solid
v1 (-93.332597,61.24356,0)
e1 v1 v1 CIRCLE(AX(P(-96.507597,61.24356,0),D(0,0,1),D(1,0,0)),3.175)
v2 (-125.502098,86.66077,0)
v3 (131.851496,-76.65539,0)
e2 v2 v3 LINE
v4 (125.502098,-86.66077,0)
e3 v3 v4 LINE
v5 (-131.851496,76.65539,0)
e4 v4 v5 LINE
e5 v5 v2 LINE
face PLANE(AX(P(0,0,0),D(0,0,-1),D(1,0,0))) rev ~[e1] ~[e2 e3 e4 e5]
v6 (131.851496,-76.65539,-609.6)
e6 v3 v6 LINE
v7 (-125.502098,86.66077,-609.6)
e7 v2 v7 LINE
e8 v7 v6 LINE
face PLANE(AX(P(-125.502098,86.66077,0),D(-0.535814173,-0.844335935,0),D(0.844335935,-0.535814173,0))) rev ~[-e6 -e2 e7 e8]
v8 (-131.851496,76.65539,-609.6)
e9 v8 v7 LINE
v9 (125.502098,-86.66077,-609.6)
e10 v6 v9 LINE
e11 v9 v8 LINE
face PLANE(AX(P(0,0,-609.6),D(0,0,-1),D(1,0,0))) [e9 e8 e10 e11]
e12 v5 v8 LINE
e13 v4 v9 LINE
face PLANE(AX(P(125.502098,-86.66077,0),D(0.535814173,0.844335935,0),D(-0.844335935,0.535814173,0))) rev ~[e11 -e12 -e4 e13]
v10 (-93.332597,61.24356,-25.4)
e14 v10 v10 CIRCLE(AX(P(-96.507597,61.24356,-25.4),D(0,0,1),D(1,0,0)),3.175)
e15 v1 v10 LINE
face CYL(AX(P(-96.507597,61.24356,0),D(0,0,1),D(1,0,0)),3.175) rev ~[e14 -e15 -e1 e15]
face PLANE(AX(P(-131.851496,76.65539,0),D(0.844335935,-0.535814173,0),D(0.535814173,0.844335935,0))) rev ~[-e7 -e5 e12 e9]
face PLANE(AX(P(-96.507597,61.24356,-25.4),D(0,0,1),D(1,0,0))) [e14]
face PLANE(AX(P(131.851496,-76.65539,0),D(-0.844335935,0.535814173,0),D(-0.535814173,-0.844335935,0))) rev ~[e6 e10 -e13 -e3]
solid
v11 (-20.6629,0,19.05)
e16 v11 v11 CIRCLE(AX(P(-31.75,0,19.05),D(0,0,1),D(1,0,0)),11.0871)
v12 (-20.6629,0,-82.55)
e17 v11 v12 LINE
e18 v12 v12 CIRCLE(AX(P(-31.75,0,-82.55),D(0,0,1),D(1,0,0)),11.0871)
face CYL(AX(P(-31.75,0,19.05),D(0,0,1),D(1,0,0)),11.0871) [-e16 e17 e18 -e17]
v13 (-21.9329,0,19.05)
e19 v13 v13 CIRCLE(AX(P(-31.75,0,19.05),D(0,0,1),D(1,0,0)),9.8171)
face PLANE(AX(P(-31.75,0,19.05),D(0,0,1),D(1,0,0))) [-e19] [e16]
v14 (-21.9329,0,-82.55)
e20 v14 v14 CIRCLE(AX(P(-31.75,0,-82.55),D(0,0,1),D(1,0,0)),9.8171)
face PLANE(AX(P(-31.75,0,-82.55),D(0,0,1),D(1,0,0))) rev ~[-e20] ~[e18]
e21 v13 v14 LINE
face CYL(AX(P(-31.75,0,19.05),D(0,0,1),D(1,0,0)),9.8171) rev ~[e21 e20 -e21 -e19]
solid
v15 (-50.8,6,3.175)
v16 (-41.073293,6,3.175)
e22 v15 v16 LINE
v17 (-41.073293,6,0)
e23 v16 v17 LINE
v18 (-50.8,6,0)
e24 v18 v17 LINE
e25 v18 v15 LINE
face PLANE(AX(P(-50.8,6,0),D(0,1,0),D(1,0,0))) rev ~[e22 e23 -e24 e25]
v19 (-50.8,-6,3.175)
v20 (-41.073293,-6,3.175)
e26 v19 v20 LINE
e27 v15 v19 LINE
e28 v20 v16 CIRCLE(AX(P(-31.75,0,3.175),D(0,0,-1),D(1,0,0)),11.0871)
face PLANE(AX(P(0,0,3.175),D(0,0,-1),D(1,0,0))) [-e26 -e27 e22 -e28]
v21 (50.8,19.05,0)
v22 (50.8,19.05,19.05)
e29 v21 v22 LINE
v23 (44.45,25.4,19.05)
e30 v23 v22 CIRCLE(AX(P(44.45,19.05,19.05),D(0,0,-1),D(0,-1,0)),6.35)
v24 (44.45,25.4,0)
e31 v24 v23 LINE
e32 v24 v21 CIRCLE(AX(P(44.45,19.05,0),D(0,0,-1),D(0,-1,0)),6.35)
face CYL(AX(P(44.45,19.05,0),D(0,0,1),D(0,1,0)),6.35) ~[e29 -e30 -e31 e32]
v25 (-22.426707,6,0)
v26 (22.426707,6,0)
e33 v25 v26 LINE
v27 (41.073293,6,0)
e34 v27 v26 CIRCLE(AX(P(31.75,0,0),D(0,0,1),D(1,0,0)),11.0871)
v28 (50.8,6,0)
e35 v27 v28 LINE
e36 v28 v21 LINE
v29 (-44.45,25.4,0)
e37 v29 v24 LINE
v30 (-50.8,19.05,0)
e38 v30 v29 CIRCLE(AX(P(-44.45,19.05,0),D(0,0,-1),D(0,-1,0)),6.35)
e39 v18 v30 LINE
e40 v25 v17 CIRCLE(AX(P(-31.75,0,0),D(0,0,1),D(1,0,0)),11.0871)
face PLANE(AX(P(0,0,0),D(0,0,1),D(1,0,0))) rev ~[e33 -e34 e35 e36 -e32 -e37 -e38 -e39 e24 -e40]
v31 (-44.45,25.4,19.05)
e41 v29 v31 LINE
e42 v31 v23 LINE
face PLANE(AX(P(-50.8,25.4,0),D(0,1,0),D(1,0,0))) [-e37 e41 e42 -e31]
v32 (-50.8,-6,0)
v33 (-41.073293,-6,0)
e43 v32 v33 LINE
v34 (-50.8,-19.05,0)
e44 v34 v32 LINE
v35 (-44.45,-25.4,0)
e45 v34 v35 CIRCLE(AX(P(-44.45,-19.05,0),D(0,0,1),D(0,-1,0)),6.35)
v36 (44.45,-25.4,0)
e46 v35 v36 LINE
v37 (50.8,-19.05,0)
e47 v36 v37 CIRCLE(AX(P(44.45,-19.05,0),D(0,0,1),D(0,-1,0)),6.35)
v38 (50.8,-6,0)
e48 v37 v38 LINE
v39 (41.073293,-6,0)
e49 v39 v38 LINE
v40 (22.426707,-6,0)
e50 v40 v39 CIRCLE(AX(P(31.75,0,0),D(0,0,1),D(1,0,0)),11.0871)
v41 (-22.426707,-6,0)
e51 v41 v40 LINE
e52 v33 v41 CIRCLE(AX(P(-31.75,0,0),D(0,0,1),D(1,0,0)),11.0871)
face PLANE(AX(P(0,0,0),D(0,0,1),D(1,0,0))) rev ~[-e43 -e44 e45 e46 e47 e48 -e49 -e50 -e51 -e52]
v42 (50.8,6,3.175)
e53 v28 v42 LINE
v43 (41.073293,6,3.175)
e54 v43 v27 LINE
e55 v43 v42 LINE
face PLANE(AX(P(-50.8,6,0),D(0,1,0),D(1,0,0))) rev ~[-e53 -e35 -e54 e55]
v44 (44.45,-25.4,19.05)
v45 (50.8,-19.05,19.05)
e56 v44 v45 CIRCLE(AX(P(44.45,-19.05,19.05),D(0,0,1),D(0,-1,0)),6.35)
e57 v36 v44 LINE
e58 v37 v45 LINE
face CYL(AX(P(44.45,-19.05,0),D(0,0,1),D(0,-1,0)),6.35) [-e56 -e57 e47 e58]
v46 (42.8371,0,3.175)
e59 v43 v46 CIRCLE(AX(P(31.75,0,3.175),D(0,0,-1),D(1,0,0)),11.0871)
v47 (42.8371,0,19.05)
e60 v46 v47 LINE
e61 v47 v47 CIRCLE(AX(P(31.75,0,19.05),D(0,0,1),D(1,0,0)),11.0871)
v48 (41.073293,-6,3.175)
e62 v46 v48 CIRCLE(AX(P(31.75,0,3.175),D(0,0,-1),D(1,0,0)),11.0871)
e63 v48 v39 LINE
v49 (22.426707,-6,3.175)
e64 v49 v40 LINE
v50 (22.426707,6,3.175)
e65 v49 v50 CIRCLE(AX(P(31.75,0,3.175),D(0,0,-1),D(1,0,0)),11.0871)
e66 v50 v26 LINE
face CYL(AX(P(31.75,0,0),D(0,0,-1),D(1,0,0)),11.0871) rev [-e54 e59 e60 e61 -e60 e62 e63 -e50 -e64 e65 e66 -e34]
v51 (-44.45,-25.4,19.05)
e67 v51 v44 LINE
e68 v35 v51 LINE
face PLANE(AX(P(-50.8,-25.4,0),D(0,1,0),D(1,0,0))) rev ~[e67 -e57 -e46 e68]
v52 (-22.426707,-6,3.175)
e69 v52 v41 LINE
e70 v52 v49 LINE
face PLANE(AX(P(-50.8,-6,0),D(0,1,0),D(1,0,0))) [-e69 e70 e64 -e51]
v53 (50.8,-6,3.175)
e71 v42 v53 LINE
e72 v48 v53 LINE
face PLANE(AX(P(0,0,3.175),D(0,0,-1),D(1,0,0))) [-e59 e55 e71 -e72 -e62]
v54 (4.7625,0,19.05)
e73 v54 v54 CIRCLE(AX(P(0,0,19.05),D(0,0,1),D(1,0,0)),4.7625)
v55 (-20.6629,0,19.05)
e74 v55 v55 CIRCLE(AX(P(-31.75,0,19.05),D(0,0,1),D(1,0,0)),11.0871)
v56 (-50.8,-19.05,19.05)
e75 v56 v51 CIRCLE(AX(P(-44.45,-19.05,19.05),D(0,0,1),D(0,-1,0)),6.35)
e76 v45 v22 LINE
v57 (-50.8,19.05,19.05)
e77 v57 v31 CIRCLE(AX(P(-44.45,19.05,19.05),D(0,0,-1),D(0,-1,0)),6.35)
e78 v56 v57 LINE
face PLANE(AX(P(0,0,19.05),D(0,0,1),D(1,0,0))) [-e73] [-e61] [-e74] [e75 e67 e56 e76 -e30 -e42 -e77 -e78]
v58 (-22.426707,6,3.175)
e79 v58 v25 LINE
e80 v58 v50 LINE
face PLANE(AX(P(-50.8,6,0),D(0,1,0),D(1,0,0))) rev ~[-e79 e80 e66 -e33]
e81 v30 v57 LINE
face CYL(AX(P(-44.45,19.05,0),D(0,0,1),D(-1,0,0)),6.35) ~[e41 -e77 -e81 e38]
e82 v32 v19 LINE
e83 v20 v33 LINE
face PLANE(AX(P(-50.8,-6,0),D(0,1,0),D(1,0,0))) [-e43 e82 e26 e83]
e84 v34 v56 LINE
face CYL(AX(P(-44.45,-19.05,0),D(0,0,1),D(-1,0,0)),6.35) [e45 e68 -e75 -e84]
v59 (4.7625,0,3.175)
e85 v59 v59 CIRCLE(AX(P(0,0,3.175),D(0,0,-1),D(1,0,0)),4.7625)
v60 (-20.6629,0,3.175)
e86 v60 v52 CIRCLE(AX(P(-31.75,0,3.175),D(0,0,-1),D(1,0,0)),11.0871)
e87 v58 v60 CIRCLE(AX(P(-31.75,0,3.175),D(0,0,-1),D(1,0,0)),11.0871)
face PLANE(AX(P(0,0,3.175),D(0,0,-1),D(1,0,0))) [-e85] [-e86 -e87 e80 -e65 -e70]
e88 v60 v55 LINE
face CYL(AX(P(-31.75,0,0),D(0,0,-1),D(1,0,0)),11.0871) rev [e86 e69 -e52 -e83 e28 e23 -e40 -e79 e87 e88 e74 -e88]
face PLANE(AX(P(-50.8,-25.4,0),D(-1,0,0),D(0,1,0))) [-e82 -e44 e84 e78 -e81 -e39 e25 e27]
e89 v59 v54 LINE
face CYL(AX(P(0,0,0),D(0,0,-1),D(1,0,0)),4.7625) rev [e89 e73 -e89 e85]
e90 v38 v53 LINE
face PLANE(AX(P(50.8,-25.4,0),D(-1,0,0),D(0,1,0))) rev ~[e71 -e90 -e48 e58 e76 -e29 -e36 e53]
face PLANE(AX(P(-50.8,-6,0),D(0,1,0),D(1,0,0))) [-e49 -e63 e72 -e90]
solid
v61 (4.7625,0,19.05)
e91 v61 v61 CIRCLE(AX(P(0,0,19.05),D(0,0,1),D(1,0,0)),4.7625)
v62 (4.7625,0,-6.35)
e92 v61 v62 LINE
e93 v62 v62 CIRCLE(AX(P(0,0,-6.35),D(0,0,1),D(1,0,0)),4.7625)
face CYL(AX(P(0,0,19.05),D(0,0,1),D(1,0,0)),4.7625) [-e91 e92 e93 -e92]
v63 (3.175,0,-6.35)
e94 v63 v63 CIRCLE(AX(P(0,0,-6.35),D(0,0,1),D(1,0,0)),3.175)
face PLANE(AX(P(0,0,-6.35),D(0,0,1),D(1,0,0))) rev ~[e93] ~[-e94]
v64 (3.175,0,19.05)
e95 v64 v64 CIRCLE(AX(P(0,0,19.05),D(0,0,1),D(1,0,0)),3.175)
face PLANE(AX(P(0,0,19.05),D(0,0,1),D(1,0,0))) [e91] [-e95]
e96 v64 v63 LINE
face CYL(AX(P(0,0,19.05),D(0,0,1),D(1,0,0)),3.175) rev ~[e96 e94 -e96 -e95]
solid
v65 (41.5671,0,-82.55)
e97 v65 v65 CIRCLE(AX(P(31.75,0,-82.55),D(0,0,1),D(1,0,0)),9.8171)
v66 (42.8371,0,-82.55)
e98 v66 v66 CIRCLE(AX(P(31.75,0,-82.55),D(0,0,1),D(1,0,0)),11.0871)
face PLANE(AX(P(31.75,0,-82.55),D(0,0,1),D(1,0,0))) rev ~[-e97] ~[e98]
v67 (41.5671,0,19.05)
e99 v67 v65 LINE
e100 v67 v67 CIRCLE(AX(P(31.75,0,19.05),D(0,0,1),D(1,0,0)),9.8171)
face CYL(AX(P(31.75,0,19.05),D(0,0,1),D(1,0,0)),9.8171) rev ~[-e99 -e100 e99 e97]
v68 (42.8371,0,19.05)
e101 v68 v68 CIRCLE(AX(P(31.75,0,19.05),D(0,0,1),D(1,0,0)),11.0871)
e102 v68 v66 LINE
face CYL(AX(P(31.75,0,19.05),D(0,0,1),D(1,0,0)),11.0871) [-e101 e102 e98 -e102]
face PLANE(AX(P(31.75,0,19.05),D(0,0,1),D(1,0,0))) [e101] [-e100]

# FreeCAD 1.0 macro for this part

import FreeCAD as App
import Part
import Sketcher

V = App.Vector
Q = App.Units.Quantity


def edges_at(feature, points):
    """Names of the edges that pass closest to the given points."""
    edges = feature.Shape.Edges
    near = lambda p: min(range(len(edges)), key=lambda i: edges[i].distToShape(Part.Vertex(*p))[0])
    return sorted({f"Edge{near(p) + 1}" for p in points})


def add_polygon(sketch, points):
    """Adds a closed chain of lines whose ends are joined by coincident constraints."""
    first, n = sketch.GeometryCount, len(points)
    for a, b in zip(points, points[1:] + points[:1]):
        sketch.addGeometry(Part.LineSegment(App.Vector(*a, 0), App.Vector(*b, 0)), False)
    for i in range(n):
        sketch.addConstraint(Sketcher.Constraint("Coincident", first + i, 2, first + (i + 1) % n, 1))

doc = App.newDocument("Part")
body = doc.addObject("PartDesign::Body", "Body")

# Sketch on XY plane
sketch1 = body.newObject("Sketcher::SketchObject", "Sketch")
sketch1.AttachmentSupport = (doc.getObject("XY_Plane"), [""])
sketch1.MapMode = "FlatFace"
add_polygon(sketch1, [(-50.8, 25.4), (-50.8, -25.4), (50.8, -25.4), (50.8, 25.4)])  # lines 0-3
sketch1.addGeometry(Part.Circle(V(-31.8, 0, 0), V(0, 0, 1), 11.1), False)  # 4
sketch1.addGeometry(Part.Circle(V(0, 0, 0), V(0, 0, 1), 4.8), False)  # 5
sketch1.addGeometry(Part.Circle(V(31.8, 0, 0), V(0, 0, 1), 11.1), False)  # 6
sketch1.addConstraint([
    Sketcher.Constraint("Vertical", 0),
    Sketcher.Constraint("Horizontal", 1),
    Sketcher.Constraint("Vertical", 2),
    Sketcher.Constraint("Horizontal", 3),
    Sketcher.Constraint("Coincident", 5, 3, -1, 1),
    Sketcher.Constraint("Equal", 4, 6),
    Sketcher.Constraint("Symmetric", 4, 3, 6, 3, -1, 1),
    Sketcher.Constraint("Symmetric", 0, 2, 2, 2, -1, 1),
    Sketcher.Constraint("PointOnObject", 4, 3, -1),
    Sketcher.Constraint("DistanceX", 1, 1, 1, 2, Q("4 in")),
    Sketcher.Constraint("DistanceY", 0, 2, 0, 1, Q("2 in")),
    Sketcher.Constraint("Diameter", 4, Q("0.873 in")),
    Sketcher.Constraint("Diameter", 5, Q("0.375 in")),
    Sketcher.Constraint("DistanceX", 4, 3, 6, 3, Q("2.5 in")),
])
pad1 = body.newObject("PartDesign::Pad", "Pad")
pad1.Profile = sketch1
pad1.Length = Q("0.75 in")
doc.recompute()

fillet = body.newObject("PartDesign::Fillet", "Fillet")
fillet.Base = (pad1, edges_at(pad1, [
    (-50.8, -25.4, 9.525),
    (-50.8, 25.4, 9.525),
    (50.8, -25.4, 9.525),
    (50.8, 25.4, 9.525),
]))
fillet.Radius = Q("0.25 in")

# Sketch on XY plane
sketch2 = body.newObject("Sketcher::SketchObject", "Sketch001")
sketch2.AttachmentSupport = (doc.getObject("XY_Plane"), [""])
sketch2.MapMode = "FlatFace"
add_polygon(sketch2, [(-51, -6), (-51, 6), (51, 6), (51, -6)])  # lines 0-3
sketch2.addConstraint([
    Sketcher.Constraint("Vertical", 0),
    Sketcher.Constraint("Horizontal", 1),
    Sketcher.Constraint("Vertical", 2),
    Sketcher.Constraint("Horizontal", 3),
    Sketcher.Constraint("Symmetric", 0, 2, 2, 2, -1, 1),
    Sketcher.Constraint("DistanceX", 1, 1, 1, 2, Q("4 in")),
    Sketcher.Constraint("DistanceY", 0, 1, 0, 2, 12.0),
])
pocket1 = body.newObject("PartDesign::Pocket", "Pocket")
pocket1.Profile = sketch2
pocket1.Length = Q("0.125 in")
pocket1.Reversed = True
body2 = doc.addObject("PartDesign::Body", "Body001")

# Sketch on XY plane
sketch3 = body2.newObject("Sketcher::SketchObject", "Sketch002")
sketch3.AttachmentSupport = (doc.getObject("XY_Plane001"), [""])
sketch3.MapMode = "FlatFace"
sketch3.AttachmentOffset = App.Placement(V(0, 0, 0.75 * 25.4), App.Rotation())
sketch3.addGeometry([
    Part.Circle(V(-32, 0, 0), V(0, 0, 1), 11),
    Part.Circle(V(-32, 0, 0), V(0, 0, 1), 10),
], False)
sketch3.addConstraint([
    Sketcher.Constraint("Coincident", 1, 3, 0, 3),
    Sketcher.Constraint("PointOnObject", 0, 3, -1),
    Sketcher.Constraint("Diameter", 0, Q("0.873 in")),
    Sketcher.Constraint("Diameter", 1, Q("0.773 in")),
    Sketcher.Constraint("DistanceX", 0, 3, -1, 1, Q("1.25 in")),
])
pad2 = body2.newObject("PartDesign::Pad", "Pad001")
pad2.Profile = sketch3
pad2.Length = Q("4 in")
pad2.Reversed = True
body3 = doc.addObject("PartDesign::Body", "Body002")

# Sketch on XY plane
sketch4 = body3.newObject("Sketcher::SketchObject", "Sketch003")
sketch4.AttachmentSupport = (doc.getObject("XY_Plane002"), [""])
sketch4.MapMode = "FlatFace"
sketch4.AttachmentOffset = App.Placement(V(0, 0, 0.75 * 25.4), App.Rotation())
sketch4.addGeometry([
    Part.Circle(V(32, 0, 0), V(0, 0, 1), 11),
    Part.Circle(V(32, 0, 0), V(0, 0, 1), 10),
], False)
sketch4.addConstraint([
    Sketcher.Constraint("Coincident", 1, 3, 0, 3),
    Sketcher.Constraint("PointOnObject", 0, 3, -1),
    Sketcher.Constraint("Diameter", 0, Q("0.873 in")),
    Sketcher.Constraint("Diameter", 1, Q("0.773 in")),
    Sketcher.Constraint("DistanceX", -1, 1, 0, 3, Q("1.25 in")),
])
pad3 = body3.newObject("PartDesign::Pad", "Pad002")
pad3.Profile = sketch4
pad3.Length = Q("4 in")
pad3.Reversed = True
body4 = doc.addObject("PartDesign::Body", "Body003")

# Sketch on XY plane
sketch5 = body4.newObject("Sketcher::SketchObject", "Sketch004")
sketch5.AttachmentSupport = (doc.getObject("XY_Plane003"), [""])
sketch5.MapMode = "FlatFace"
sketch5.AttachmentOffset = App.Placement(V(0, 0, 0.75 * 25.4), App.Rotation())
sketch5.addGeometry([
    Part.Circle(V(0, 0, 0), V(0, 0, 1), 4.8),
    Part.Circle(V(0, 0, 0), V(0, 0, 1), 3.2),
], False)
sketch5.addConstraint([
    Sketcher.Constraint("Coincident", 0, 3, -1, 1),
    Sketcher.Constraint("Coincident", 1, 3, -1, 1),
    Sketcher.Constraint("Diameter", 1, Q("0.25 in")),
    Sketcher.Constraint("Diameter", 0, Q("0.375 in")),
])
pad4 = body4.newObject("PartDesign::Pad", "Pad003")
pad4.Profile = sketch5
pad4.Length = Q("1 in")
pad4.Reversed = True
body5 = doc.addObject("PartDesign::Body", "Body004")

# Sketch on XY plane
sketch6 = body5.newObject("Sketcher::SketchObject", "Sketch005")
sketch6.AttachmentSupport = (doc.getObject("XY_Plane004"), [""])
sketch6.MapMode = "FlatFace"
add_polygon(sketch6, [(126, -87), (-132, 77), (-126, 87), (132, -77)])  # lines 0-3
sketch6.addConstraint([
    Sketcher.Constraint("Symmetric", 0, 2, 2, 2, -1, 1),
    Sketcher.Constraint("Symmetric", 1, 2, 3, 2, -1, 1),
    Sketcher.Constraint("Perpendicular", 0, 1),
    Sketcher.Constraint("Distance", 0, Q("12 in")),
    Sketcher.Constraint("Distance", 1, 11.85),
    Sketcher.Constraint("DistanceY", -1, 1, 0, 2, 76.65539),
])
pad5 = body5.newObject("PartDesign::Pad", "Pad004")
pad5.Profile = sketch6
pad5.Length = Q("24 in")
pad5.Reversed = True

# Sketch on XY plane
sketch7 = body5.newObject("Sketcher::SketchObject", "Sketch006")
sketch7.AttachmentSupport = (doc.getObject("XY_Plane004"), [""])
sketch7.MapMode = "FlatFace"
sketch7.addGeometry(Part.Circle(V(-96.5, 61.2, 0), V(0, 0, 1), 3.2), False)
sketch7.addConstraint([
    Sketcher.Constraint("Diameter", 0, Q("0.25 in")),
    Sketcher.Constraint("DistanceY", -1, 1, 0, 3, 61.24356),
    Sketcher.Constraint("DistanceX", 0, 3, -1, 1, 96.507597),
])
pocket2 = body5.newObject("PartDesign::Pocket", "Pocket001")
pocket2.Profile = sketch7
pocket2.Length = Q("1 in")

doc.recompute()
